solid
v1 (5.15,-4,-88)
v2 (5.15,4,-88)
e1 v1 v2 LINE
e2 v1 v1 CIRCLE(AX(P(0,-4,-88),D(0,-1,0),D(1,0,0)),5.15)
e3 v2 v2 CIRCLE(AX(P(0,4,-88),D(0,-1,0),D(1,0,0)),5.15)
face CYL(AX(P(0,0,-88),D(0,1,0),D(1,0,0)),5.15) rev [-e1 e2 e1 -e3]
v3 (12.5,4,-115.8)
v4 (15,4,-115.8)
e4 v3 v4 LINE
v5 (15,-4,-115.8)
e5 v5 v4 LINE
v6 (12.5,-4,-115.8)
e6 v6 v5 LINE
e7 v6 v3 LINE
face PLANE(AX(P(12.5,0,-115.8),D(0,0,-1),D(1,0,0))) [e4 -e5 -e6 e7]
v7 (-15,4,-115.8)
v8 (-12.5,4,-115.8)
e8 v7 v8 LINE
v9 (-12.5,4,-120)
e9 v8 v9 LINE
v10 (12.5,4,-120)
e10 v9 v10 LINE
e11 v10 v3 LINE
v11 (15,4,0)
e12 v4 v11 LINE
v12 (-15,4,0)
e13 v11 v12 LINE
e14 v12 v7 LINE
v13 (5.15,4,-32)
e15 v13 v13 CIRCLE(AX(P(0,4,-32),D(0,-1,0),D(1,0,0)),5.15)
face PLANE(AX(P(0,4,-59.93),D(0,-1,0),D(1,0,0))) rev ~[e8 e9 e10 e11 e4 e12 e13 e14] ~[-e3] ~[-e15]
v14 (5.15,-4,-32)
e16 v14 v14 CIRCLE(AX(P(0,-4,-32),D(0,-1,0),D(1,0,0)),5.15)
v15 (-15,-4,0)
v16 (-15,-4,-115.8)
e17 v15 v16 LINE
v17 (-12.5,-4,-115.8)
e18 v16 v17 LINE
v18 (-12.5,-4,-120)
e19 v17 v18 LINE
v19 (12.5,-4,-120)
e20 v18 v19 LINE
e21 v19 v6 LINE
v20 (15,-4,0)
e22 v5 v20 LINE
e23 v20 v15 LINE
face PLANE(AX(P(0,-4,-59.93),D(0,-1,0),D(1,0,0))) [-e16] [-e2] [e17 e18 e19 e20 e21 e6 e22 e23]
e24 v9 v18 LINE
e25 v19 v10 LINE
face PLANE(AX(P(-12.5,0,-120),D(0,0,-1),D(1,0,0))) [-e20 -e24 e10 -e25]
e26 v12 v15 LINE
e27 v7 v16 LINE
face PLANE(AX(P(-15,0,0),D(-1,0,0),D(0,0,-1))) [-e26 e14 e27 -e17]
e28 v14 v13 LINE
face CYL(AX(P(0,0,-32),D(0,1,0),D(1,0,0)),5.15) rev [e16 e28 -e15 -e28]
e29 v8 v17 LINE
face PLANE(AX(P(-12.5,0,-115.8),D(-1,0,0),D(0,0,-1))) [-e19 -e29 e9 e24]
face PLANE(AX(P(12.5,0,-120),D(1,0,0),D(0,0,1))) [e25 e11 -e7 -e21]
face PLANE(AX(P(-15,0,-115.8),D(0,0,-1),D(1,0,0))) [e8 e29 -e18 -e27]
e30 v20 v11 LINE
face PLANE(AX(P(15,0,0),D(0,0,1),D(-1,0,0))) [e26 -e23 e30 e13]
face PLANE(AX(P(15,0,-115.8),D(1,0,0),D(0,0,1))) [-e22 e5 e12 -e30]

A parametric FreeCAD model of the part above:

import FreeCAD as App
import Part
import Sketcher

V = App.Vector
Q = App.Units.Quantity


def add_polygon(sketch, points):
    """Adds a closed chain of lines whose ends are joined by coincident constraints."""
    first, n = sketch.GeometryCount, len(points)
    for a, b in zip(points, points[1:] + points[:1]):
        sketch.addGeometry(Part.LineSegment(App.Vector(*a, 0), App.Vector(*b, 0)), False)
    for i in range(n):
        sketch.addConstraint(Sketcher.Constraint("Coincident", first + i, 2, first + (i + 1) % n, 1))

doc = App.newDocument("Part")
body = doc.addObject("PartDesign::Body", "Body")

# Sketch on XZ plane
sketch1 = body.newObject("Sketcher::SketchObject", "Sketch")
sketch1.AttachmentSupport = (doc.getObject("XZ_Plane"), [""])
sketch1.MapMode = "FlatFace"
add_polygon(sketch1, [(15, 0), (-15, 0), (-15, -115.8), (-12.5, -115.8), (-12.5, -120), (12.5, -120), (12.5, -115.8), (15, -115.8)])  # lines 0-7
sketch1.addGeometry(Part.Circle(V(0, -88, 0), V(0, 0, 1), 5.2), False)  # 8
sketch1.addGeometry(Part.Circle(V(0, -32, 0), V(0, 0, 1), 5.2), False)  # 9
sketch1.addConstraint([
    Sketcher.Constraint("Horizontal", 0),
    Sketcher.Constraint("Vertical", 1),
    Sketcher.Constraint("Horizontal", 2),
    Sketcher.Constraint("Vertical", 3),
    Sketcher.Constraint("Horizontal", 4),
    Sketcher.Constraint("Vertical", 5),
    Sketcher.Constraint("Horizontal", 6),
    Sketcher.Constraint("Vertical", 7),
    Sketcher.Constraint("Equal", 8, 9),
    Sketcher.Constraint("Symmetric", 0, 2, 7, 2, -1, 1),
    Sketcher.Constraint("Symmetric", 2, 2, 5, 2, -2),
    Sketcher.Constraint("PointOnObject", 8, 3, -2),
    Sketcher.Constraint("PointOnObject", 9, 3, -2),
    Sketcher.Constraint("Diameter", 8, Q("10.3 mm")),
    Sketcher.Constraint("DistanceX", 0, 2, 0, 1, Q("30 mm")),
    Sketcher.Constraint("DistanceX", 4, 1, 4, 2, Q("25 mm")),
    Sketcher.Constraint("DistanceY", 1, 2, 1, 1, Q("115.8 mm")),
    Sketcher.Constraint("DistanceY", 3, 2, 3, 1, Q("4.2 mm")),
    Sketcher.Constraint("DistanceY", 8, 3, -1, 1, Q("88 mm")),
    Sketcher.Constraint("DistanceY", 9, 3, -1, 1, Q("32 mm")),
])
pad1 = body.newObject("PartDesign::Pad", "Pad")
pad1.Profile = sketch1
pad1.Length = 8
pad1.Midplane = True

doc.recompute()
